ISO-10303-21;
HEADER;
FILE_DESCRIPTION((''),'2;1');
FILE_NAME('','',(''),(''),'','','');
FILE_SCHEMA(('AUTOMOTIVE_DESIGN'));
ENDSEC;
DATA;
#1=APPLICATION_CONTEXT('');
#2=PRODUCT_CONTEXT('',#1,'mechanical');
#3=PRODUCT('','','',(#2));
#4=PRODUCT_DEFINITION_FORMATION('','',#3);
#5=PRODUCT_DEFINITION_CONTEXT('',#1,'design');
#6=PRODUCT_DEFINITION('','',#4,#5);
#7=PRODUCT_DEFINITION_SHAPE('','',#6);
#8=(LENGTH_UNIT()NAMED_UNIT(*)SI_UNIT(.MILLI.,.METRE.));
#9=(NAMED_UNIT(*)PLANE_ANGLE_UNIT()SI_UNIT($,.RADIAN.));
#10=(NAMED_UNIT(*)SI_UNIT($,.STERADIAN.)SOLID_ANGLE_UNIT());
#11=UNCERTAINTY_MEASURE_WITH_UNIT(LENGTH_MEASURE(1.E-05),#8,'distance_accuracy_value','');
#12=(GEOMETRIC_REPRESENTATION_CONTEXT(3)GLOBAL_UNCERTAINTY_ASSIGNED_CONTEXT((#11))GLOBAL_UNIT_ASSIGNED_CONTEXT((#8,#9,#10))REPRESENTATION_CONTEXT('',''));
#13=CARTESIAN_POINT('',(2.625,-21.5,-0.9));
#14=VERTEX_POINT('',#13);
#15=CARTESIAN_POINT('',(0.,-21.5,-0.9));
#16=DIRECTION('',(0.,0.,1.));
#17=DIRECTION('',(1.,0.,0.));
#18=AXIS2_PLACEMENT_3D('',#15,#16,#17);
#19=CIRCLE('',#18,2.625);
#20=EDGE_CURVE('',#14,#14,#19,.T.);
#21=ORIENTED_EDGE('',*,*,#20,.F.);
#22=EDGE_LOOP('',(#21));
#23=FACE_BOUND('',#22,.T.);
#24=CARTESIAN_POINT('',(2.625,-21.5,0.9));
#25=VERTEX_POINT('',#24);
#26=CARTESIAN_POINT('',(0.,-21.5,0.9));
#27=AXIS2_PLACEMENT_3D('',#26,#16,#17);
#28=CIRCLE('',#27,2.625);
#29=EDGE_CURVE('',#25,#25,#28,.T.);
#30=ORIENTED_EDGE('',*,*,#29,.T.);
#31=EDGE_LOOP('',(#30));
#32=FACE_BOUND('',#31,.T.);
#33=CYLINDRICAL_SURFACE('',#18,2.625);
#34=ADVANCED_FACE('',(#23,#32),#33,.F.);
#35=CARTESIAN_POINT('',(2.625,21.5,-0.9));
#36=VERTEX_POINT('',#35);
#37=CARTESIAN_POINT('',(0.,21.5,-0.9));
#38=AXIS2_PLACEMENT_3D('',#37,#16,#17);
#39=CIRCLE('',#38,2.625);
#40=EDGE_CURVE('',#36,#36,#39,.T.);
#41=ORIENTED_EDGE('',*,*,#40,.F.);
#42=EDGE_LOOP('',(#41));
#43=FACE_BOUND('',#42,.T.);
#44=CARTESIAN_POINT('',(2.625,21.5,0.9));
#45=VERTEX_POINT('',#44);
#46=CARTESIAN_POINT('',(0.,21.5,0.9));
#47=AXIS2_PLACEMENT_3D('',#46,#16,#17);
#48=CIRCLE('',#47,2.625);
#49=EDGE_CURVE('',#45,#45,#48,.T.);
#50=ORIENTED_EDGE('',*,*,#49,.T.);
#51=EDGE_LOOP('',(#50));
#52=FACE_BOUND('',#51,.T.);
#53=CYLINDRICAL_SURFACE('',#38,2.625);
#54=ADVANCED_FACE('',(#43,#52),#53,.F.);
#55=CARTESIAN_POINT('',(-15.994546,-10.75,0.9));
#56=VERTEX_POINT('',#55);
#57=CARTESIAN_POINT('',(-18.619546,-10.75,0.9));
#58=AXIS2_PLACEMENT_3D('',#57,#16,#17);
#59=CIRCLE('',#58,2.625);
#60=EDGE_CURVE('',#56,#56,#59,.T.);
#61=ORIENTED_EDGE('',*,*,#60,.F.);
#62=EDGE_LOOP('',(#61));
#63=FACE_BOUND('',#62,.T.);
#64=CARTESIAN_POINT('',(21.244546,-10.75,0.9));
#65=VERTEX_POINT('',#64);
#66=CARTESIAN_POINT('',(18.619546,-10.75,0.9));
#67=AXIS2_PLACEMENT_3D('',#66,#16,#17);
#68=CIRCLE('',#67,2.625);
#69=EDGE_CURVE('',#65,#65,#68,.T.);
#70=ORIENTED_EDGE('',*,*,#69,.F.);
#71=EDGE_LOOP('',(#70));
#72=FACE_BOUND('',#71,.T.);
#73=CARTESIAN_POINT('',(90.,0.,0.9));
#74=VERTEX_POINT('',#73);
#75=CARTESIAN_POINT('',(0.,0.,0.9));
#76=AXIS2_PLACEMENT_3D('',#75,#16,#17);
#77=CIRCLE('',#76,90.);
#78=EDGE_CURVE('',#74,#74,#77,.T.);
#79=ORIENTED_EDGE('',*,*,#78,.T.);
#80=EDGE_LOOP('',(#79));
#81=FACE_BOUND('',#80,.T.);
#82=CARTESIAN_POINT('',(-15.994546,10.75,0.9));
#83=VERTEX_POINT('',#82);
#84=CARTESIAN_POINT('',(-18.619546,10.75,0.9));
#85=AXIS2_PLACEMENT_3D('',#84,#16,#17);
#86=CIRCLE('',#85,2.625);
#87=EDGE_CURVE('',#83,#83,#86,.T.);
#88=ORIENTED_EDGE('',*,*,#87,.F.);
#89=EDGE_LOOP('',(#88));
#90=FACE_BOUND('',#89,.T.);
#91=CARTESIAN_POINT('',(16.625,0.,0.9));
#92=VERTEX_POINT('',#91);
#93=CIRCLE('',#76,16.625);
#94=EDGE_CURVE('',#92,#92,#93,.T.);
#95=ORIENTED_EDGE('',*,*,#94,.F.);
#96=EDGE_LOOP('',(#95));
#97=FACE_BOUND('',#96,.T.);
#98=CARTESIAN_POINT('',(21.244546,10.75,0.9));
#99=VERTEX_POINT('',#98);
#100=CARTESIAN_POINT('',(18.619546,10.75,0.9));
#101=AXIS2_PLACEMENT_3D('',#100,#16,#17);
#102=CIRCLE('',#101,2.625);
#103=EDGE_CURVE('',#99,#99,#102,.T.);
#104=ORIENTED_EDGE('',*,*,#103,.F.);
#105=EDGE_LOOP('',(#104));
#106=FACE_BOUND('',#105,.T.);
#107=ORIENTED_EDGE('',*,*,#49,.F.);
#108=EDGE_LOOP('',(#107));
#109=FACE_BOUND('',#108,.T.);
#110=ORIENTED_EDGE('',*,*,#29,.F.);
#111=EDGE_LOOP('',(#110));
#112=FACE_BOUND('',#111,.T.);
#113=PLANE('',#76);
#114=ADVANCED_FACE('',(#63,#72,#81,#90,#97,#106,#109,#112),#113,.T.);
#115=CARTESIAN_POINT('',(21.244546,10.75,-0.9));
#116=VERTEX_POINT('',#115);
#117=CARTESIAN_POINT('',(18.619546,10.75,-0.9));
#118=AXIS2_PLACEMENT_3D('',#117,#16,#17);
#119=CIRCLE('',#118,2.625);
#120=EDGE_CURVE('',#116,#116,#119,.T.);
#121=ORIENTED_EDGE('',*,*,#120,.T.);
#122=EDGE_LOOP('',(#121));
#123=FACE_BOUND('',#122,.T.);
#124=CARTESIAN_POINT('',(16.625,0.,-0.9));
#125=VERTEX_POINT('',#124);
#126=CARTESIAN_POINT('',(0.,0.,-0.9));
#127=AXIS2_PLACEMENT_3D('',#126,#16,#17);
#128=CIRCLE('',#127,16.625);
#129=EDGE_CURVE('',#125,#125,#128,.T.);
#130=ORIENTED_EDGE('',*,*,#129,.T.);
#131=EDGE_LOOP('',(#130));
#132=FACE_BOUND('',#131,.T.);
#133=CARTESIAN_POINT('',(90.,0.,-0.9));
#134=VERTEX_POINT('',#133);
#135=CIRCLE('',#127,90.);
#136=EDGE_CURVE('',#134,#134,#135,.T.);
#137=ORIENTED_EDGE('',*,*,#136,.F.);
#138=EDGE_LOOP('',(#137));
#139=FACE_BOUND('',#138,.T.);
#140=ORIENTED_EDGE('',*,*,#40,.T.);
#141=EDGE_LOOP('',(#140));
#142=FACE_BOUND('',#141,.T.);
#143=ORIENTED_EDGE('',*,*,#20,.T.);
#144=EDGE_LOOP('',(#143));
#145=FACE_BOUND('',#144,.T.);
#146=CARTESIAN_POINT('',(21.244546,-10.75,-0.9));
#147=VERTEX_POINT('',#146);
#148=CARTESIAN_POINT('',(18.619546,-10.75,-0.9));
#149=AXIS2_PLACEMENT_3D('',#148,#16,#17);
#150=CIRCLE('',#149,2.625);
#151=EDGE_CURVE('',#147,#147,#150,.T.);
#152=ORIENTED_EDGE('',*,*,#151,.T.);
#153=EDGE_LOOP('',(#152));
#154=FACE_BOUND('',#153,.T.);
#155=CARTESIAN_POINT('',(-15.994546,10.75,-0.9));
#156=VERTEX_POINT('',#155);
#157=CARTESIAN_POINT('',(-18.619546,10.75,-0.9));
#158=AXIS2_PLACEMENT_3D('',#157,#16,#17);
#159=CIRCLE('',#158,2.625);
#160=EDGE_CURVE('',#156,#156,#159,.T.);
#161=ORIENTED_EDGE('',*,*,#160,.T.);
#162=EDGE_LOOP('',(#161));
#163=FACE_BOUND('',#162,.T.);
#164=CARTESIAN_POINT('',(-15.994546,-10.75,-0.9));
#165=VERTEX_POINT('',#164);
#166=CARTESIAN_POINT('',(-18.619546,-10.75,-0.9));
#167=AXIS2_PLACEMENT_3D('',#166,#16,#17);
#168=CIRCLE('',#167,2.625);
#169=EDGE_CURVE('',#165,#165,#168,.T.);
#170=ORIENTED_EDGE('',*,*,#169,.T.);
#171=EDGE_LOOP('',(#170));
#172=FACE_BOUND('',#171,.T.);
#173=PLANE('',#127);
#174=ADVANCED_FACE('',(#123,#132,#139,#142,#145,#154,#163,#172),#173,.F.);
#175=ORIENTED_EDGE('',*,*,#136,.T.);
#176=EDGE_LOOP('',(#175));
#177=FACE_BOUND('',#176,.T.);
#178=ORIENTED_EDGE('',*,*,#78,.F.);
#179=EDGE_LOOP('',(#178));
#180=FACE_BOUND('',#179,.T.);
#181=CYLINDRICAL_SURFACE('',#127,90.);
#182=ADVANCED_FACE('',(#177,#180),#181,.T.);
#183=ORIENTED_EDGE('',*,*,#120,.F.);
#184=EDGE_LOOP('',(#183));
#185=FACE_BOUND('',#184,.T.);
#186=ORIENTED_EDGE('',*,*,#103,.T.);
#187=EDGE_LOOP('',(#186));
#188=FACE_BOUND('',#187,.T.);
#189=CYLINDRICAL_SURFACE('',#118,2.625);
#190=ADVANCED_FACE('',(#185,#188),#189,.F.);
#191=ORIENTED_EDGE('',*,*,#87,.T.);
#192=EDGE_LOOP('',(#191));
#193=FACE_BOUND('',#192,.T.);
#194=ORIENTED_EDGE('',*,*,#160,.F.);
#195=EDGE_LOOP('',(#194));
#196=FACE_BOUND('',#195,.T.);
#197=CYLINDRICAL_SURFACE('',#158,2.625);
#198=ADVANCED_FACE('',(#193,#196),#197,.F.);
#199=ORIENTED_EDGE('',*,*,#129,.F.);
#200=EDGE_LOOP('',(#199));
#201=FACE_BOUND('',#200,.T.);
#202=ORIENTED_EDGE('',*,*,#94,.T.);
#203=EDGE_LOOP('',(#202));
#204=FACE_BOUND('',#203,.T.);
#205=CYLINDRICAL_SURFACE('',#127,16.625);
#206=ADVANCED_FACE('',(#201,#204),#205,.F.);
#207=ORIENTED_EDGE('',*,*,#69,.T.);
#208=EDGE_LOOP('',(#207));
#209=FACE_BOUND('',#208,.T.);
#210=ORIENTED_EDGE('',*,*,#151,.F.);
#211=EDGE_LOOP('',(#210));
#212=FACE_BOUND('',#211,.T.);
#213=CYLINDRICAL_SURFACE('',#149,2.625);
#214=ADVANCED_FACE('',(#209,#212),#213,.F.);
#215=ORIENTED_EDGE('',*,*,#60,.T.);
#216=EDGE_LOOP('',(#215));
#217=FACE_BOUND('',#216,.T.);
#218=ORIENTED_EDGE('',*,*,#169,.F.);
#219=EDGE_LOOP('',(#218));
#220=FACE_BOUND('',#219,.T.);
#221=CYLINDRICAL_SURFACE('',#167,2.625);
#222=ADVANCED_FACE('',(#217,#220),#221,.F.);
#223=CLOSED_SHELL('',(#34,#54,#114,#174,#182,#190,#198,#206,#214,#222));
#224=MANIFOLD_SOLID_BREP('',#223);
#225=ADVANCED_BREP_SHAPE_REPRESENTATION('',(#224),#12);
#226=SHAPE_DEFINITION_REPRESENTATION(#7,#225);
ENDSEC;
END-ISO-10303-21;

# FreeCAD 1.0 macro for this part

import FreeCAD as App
import Part
import Sketcher
from FreeCAD import Vector
Q = App.Units.Quantity

doc = App.newDocument("Part")
body = doc.addObject("PartDesign::Body", "Body")

sketch1 = body.newObject("Sketcher::SketchObject", "Sketch")
sketch1.AttachmentSupport = (doc.getObject("XY_Plane"), [""])
sketch1.MapMode = "FlatFace"
sketch1.addGeometry(Part.Circle(Vector(0, 0, 0), Vector(0, 0, 1), 90), False)
sketch1.addGeometry(Part.Circle(Vector(0, -21.5, 0), Vector(0, 0, 1), 2.6), False)
sketch1.addGeometry(Part.Circle(Vector(-18.6, -10.8, 0), Vector(0, 0, 1), 2.6), False)
sketch1.addGeometry(Part.Circle(Vector(18.6, -10.8, 0), Vector(0, 0, 1), 2.6), False)
sketch1.addGeometry(Part.Circle(Vector(-18.6, 10.8, 0), Vector(0, 0, 1), 2.6), False)
sketch1.addGeometry(Part.Circle(Vector(0, 0, 0), Vector(0, 0, 1), 16.6), False)
sketch1.addGeometry(Part.Circle(Vector(0, 21.5, 0), Vector(0, 0, 1), 2.6), False)
sketch1.addGeometry(Part.Circle(Vector(18.6, 10.8, 0), Vector(0, 0, 1), 2.6), False)
sketch1.addConstraint(Sketcher.Constraint("Coincident", 0, 3, -1, 1))
sketch1.addConstraint(Sketcher.Constraint("Coincident", 5, 3, -1, 1))
sketch1.addConstraint(Sketcher.Constraint("Equal", 1, 2))
sketch1.addConstraint(Sketcher.Constraint("Equal", 2, 3))
sketch1.addConstraint(Sketcher.Constraint("Equal", 3, 4))
sketch1.addConstraint(Sketcher.Constraint("Equal", 4, 6))
sketch1.addConstraint(Sketcher.Constraint("Equal", 6, 7))
sketch1.addConstraint(Sketcher.Constraint("Symmetric", 3, 3, 4, 3, -1, 1))
sketch1.addConstraint(Sketcher.Constraint("Symmetric", 1, 3, 6, 3, -1, 1))
sketch1.addConstraint(Sketcher.Constraint("Symmetric", 2, 3, 7, 3, -1, 1))
sketch1.addConstraint(Sketcher.Constraint("Symmetric", 2, 3, 3, 3, -2))
sketch1.addConstraint(Sketcher.Constraint("PointOnObject", 1, 3, -2))
sketch1.addConstraint(Sketcher.Constraint("Diameter", 0, Q("180 mm")))
sketch1.addConstraint(Sketcher.Constraint("Diameter", 1, Q("5.25 mm")))
sketch1.addConstraint(Sketcher.Constraint("Diameter", 5, Q("33.25 mm")))
sketch1.addConstraint(Sketcher.Constraint("DistanceY", 1, 3, -1, 1, Q("21.5 mm")))
sketch1.addConstraint(Sketcher.Constraint("DistanceY", 2, 3, 4, 3, Q("21.5 mm")))
sketch1.addConstraint(Sketcher.Constraint("DistanceX", 2, 3, -1, 1, Q("18.619546 mm")))
pad1 = body.newObject("PartDesign::Pad", "Pad")
pad1.Profile = sketch1
pad1.Type = "TwoLengths"
pad1.Length = 0.9
pad1.Length2 = 0.9

doc.recompute()
